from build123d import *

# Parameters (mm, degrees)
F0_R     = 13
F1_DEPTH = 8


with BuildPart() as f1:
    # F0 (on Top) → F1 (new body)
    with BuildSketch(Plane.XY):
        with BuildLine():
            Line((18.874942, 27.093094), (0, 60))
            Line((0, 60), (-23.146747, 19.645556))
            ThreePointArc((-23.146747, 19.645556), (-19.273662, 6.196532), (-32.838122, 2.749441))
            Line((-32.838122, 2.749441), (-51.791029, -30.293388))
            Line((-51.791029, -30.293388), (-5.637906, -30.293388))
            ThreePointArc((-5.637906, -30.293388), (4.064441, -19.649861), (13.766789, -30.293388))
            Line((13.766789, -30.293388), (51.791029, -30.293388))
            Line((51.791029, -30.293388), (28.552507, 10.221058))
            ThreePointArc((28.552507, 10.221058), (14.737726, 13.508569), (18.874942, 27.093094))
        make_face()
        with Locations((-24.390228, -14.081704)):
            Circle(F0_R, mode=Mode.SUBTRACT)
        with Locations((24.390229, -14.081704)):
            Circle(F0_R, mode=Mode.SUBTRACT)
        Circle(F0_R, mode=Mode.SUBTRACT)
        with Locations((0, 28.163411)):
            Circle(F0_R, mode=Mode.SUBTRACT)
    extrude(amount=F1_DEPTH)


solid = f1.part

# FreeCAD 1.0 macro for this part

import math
import FreeCAD as App
import Part
import Sketcher
from FreeCAD import Vector

doc = App.newDocument("Part")
body = doc.addObject("PartDesign::Body", "Body")

sketch1 = body.newObject("Sketcher::SketchObject", "Sketch")
sketch1.AttachmentSupport = (doc.getObject("XY_Plane"), [""])
sketch1.MapMode = "FlatFace"
sketch1.addGeometry(Part.LineSegment(Vector(18.874942, 27.093094, 0), Vector(0, 60, 0)), False)
sketch1.addGeometry(Part.LineSegment(Vector(0, 60, 0), Vector(-23.146747, 19.645556, 0)), False)
sketch1.addGeometry(Part.ArcOfCircle(Part.Circle(Vector(-27.725922, 11.044631, 0), Vector(0, 0, 1), 9.74396), math.radians(-121.6449), math.radians(61.968943)), False)
sketch1.addGeometry(Part.LineSegment(Vector(-32.838122, 2.749441, 0), Vector(-51.791029, -30.293388, 0)), False)
sketch1.addGeometry(Part.LineSegment(Vector(-51.791029, -30.293388, 0), Vector(-5.637906, -30.293388, 0)), False)
sketch1.addGeometry(Part.ArcOfCircle(Part.Circle(Vector(4.064442, -29.393822, 0), Vector(0, 0, 1), 9.743961), math.radians(-5.297113), math.radians(185.297113)), False)
sketch1.addGeometry(Part.LineSegment(Vector(13.766789, -30.293388, 0), Vector(51.791029, -30.293388, 0)), False)
sketch1.addGeometry(Part.LineSegment(Vector(51.791029, -30.293388, 0), Vector(28.552507, 10.221058, 0)), False)
sketch1.addGeometry(Part.ArcOfCircle(Part.Circle(Vector(23.189986, 18.356667, 0), Vector(0, 0, 1), 9.74396), math.radians(116.285416), math.radians(303.390549)), False)
sketch1.addGeometry(Part.Circle(Vector(-24.390228, -14.081704, 0), Vector(0, 0, 1), 13), False)
sketch1.addGeometry(Part.Circle(Vector(0, 0, 0), Vector(0, 0, 1), 13), False)
sketch1.addGeometry(Part.Circle(Vector(24.390229, -14.081704, 0), Vector(0, 0, 1), 13), False)
sketch1.addGeometry(Part.Circle(Vector(0, 28.163411, 0), Vector(0, 0, 1), 13), False)
sketch1.addConstraint(Sketcher.Constraint("Coincident", 0, 2, 1, 1))
sketch1.addConstraint(Sketcher.Constraint("Coincident", 1, 2, 2, 2))
sketch1.addConstraint(Sketcher.Constraint("Coincident", 2, 1, 3, 1))
sketch1.addConstraint(Sketcher.Constraint("Coincident", 3, 2, 4, 1))
sketch1.addConstraint(Sketcher.Constraint("Coincident", 4, 2, 5, 2))
sketch1.addConstraint(Sketcher.Constraint("Coincident", 5, 1, 6, 1))
sketch1.addConstraint(Sketcher.Constraint("Coincident", 6, 2, 7, 1))
sketch1.addConstraint(Sketcher.Constraint("Coincident", 7, 2, 8, 2))
sketch1.addConstraint(Sketcher.Constraint("Coincident", 8, 1, 0, 1))
sketch1.addConstraint(Sketcher.Constraint("Horizontal", 4))
sketch1.addConstraint(Sketcher.Constraint("Horizontal", 6))
sketch1.addConstraint(Sketcher.Constraint("Coincident", 10, 3, -1, 1))
sketch1.addConstraint(Sketcher.Constraint("Equal", 2, 5))
sketch1.addConstraint(Sketcher.Constraint("Equal", 5, 8))
sketch1.addConstraint(Sketcher.Constraint("Equal", 9, 10))
sketch1.addConstraint(Sketcher.Constraint("Equal", 10, 11))
sketch1.addConstraint(Sketcher.Constraint("Equal", 11, 12))
sketch1.addConstraint(Sketcher.Constraint("Symmetric", 9, 3, 11, 3, -2))
sketch1.addConstraint(Sketcher.Constraint("Symmetric", 3, 2, 6, 2, -2))
sketch1.addConstraint(Sketcher.Constraint("PointOnObject", 12, 3, -2))
sketch1.addConstraint(Sketcher.Constraint("PointOnObject", 0, 2, -2))
sketch1.addConstraint(Sketcher.Constraint("Parallel", 1, 3))
sketch1.addConstraint(Sketcher.Constraint("Parallel", 0, 7))
sketch1.addConstraint(Sketcher.Constraint("Diameter", 9, 26.0))
sketch1.addConstraint(Sketcher.Constraint("DistanceY", -1, 1, 0, 2, 60.0))
sketch1.addConstraint(Sketcher.Constraint("Radius", 2, 9.74396))
sketch1.addConstraint(Sketcher.Constraint("DistanceX", 6, 1, 6, 2, 38.02424))
sketch1.addConstraint(Sketcher.Constraint("DistanceX", 2, 1, 2, 3, 5.1122))
sketch1.addConstraint(Sketcher.Constraint("DistanceX", 3, 2, 9, 3, 27.400801))
sketch1.addConstraint(Sketcher.Constraint("Distance", 0, 37.935839))
sketch1.addConstraint(Sketcher.Constraint("DistanceX", 4, 1, 4, 2, 46.153123))
sketch1.addConstraint(Sketcher.Constraint("DistanceY", -1, 1, 2, 3, 11.044631))
sketch1.addConstraint(Sketcher.Constraint("DistanceY", 5, 3, -1, 1, 29.393822))
sketch1.addConstraint(Sketcher.Constraint("DistanceX", 9, 3, -1, 1, 24.390228))
sketch1.addConstraint(Sketcher.Constraint("DistanceY", -1, 1, 12, 3, 28.163411))
sketch1.addConstraint(Sketcher.Constraint("DistanceX", 2, 1, -1, 1, 32.838122))
sketch1.addConstraint(Sketcher.Constraint("DistanceX", 2, 3, 8, 3, 50.915908))
sketch1.addConstraint(Sketcher.Constraint("DistanceY", 5, 3, 8, 3, 47.750489))
sketch1.addConstraint(Sketcher.Constraint("DistanceY", 9, 3, 8, 3, 32.438371))
pad1 = body.newObject("PartDesign::Pad", "Pad")
pad1.Profile = sketch1
pad1.Length = 8

doc.recompute()
